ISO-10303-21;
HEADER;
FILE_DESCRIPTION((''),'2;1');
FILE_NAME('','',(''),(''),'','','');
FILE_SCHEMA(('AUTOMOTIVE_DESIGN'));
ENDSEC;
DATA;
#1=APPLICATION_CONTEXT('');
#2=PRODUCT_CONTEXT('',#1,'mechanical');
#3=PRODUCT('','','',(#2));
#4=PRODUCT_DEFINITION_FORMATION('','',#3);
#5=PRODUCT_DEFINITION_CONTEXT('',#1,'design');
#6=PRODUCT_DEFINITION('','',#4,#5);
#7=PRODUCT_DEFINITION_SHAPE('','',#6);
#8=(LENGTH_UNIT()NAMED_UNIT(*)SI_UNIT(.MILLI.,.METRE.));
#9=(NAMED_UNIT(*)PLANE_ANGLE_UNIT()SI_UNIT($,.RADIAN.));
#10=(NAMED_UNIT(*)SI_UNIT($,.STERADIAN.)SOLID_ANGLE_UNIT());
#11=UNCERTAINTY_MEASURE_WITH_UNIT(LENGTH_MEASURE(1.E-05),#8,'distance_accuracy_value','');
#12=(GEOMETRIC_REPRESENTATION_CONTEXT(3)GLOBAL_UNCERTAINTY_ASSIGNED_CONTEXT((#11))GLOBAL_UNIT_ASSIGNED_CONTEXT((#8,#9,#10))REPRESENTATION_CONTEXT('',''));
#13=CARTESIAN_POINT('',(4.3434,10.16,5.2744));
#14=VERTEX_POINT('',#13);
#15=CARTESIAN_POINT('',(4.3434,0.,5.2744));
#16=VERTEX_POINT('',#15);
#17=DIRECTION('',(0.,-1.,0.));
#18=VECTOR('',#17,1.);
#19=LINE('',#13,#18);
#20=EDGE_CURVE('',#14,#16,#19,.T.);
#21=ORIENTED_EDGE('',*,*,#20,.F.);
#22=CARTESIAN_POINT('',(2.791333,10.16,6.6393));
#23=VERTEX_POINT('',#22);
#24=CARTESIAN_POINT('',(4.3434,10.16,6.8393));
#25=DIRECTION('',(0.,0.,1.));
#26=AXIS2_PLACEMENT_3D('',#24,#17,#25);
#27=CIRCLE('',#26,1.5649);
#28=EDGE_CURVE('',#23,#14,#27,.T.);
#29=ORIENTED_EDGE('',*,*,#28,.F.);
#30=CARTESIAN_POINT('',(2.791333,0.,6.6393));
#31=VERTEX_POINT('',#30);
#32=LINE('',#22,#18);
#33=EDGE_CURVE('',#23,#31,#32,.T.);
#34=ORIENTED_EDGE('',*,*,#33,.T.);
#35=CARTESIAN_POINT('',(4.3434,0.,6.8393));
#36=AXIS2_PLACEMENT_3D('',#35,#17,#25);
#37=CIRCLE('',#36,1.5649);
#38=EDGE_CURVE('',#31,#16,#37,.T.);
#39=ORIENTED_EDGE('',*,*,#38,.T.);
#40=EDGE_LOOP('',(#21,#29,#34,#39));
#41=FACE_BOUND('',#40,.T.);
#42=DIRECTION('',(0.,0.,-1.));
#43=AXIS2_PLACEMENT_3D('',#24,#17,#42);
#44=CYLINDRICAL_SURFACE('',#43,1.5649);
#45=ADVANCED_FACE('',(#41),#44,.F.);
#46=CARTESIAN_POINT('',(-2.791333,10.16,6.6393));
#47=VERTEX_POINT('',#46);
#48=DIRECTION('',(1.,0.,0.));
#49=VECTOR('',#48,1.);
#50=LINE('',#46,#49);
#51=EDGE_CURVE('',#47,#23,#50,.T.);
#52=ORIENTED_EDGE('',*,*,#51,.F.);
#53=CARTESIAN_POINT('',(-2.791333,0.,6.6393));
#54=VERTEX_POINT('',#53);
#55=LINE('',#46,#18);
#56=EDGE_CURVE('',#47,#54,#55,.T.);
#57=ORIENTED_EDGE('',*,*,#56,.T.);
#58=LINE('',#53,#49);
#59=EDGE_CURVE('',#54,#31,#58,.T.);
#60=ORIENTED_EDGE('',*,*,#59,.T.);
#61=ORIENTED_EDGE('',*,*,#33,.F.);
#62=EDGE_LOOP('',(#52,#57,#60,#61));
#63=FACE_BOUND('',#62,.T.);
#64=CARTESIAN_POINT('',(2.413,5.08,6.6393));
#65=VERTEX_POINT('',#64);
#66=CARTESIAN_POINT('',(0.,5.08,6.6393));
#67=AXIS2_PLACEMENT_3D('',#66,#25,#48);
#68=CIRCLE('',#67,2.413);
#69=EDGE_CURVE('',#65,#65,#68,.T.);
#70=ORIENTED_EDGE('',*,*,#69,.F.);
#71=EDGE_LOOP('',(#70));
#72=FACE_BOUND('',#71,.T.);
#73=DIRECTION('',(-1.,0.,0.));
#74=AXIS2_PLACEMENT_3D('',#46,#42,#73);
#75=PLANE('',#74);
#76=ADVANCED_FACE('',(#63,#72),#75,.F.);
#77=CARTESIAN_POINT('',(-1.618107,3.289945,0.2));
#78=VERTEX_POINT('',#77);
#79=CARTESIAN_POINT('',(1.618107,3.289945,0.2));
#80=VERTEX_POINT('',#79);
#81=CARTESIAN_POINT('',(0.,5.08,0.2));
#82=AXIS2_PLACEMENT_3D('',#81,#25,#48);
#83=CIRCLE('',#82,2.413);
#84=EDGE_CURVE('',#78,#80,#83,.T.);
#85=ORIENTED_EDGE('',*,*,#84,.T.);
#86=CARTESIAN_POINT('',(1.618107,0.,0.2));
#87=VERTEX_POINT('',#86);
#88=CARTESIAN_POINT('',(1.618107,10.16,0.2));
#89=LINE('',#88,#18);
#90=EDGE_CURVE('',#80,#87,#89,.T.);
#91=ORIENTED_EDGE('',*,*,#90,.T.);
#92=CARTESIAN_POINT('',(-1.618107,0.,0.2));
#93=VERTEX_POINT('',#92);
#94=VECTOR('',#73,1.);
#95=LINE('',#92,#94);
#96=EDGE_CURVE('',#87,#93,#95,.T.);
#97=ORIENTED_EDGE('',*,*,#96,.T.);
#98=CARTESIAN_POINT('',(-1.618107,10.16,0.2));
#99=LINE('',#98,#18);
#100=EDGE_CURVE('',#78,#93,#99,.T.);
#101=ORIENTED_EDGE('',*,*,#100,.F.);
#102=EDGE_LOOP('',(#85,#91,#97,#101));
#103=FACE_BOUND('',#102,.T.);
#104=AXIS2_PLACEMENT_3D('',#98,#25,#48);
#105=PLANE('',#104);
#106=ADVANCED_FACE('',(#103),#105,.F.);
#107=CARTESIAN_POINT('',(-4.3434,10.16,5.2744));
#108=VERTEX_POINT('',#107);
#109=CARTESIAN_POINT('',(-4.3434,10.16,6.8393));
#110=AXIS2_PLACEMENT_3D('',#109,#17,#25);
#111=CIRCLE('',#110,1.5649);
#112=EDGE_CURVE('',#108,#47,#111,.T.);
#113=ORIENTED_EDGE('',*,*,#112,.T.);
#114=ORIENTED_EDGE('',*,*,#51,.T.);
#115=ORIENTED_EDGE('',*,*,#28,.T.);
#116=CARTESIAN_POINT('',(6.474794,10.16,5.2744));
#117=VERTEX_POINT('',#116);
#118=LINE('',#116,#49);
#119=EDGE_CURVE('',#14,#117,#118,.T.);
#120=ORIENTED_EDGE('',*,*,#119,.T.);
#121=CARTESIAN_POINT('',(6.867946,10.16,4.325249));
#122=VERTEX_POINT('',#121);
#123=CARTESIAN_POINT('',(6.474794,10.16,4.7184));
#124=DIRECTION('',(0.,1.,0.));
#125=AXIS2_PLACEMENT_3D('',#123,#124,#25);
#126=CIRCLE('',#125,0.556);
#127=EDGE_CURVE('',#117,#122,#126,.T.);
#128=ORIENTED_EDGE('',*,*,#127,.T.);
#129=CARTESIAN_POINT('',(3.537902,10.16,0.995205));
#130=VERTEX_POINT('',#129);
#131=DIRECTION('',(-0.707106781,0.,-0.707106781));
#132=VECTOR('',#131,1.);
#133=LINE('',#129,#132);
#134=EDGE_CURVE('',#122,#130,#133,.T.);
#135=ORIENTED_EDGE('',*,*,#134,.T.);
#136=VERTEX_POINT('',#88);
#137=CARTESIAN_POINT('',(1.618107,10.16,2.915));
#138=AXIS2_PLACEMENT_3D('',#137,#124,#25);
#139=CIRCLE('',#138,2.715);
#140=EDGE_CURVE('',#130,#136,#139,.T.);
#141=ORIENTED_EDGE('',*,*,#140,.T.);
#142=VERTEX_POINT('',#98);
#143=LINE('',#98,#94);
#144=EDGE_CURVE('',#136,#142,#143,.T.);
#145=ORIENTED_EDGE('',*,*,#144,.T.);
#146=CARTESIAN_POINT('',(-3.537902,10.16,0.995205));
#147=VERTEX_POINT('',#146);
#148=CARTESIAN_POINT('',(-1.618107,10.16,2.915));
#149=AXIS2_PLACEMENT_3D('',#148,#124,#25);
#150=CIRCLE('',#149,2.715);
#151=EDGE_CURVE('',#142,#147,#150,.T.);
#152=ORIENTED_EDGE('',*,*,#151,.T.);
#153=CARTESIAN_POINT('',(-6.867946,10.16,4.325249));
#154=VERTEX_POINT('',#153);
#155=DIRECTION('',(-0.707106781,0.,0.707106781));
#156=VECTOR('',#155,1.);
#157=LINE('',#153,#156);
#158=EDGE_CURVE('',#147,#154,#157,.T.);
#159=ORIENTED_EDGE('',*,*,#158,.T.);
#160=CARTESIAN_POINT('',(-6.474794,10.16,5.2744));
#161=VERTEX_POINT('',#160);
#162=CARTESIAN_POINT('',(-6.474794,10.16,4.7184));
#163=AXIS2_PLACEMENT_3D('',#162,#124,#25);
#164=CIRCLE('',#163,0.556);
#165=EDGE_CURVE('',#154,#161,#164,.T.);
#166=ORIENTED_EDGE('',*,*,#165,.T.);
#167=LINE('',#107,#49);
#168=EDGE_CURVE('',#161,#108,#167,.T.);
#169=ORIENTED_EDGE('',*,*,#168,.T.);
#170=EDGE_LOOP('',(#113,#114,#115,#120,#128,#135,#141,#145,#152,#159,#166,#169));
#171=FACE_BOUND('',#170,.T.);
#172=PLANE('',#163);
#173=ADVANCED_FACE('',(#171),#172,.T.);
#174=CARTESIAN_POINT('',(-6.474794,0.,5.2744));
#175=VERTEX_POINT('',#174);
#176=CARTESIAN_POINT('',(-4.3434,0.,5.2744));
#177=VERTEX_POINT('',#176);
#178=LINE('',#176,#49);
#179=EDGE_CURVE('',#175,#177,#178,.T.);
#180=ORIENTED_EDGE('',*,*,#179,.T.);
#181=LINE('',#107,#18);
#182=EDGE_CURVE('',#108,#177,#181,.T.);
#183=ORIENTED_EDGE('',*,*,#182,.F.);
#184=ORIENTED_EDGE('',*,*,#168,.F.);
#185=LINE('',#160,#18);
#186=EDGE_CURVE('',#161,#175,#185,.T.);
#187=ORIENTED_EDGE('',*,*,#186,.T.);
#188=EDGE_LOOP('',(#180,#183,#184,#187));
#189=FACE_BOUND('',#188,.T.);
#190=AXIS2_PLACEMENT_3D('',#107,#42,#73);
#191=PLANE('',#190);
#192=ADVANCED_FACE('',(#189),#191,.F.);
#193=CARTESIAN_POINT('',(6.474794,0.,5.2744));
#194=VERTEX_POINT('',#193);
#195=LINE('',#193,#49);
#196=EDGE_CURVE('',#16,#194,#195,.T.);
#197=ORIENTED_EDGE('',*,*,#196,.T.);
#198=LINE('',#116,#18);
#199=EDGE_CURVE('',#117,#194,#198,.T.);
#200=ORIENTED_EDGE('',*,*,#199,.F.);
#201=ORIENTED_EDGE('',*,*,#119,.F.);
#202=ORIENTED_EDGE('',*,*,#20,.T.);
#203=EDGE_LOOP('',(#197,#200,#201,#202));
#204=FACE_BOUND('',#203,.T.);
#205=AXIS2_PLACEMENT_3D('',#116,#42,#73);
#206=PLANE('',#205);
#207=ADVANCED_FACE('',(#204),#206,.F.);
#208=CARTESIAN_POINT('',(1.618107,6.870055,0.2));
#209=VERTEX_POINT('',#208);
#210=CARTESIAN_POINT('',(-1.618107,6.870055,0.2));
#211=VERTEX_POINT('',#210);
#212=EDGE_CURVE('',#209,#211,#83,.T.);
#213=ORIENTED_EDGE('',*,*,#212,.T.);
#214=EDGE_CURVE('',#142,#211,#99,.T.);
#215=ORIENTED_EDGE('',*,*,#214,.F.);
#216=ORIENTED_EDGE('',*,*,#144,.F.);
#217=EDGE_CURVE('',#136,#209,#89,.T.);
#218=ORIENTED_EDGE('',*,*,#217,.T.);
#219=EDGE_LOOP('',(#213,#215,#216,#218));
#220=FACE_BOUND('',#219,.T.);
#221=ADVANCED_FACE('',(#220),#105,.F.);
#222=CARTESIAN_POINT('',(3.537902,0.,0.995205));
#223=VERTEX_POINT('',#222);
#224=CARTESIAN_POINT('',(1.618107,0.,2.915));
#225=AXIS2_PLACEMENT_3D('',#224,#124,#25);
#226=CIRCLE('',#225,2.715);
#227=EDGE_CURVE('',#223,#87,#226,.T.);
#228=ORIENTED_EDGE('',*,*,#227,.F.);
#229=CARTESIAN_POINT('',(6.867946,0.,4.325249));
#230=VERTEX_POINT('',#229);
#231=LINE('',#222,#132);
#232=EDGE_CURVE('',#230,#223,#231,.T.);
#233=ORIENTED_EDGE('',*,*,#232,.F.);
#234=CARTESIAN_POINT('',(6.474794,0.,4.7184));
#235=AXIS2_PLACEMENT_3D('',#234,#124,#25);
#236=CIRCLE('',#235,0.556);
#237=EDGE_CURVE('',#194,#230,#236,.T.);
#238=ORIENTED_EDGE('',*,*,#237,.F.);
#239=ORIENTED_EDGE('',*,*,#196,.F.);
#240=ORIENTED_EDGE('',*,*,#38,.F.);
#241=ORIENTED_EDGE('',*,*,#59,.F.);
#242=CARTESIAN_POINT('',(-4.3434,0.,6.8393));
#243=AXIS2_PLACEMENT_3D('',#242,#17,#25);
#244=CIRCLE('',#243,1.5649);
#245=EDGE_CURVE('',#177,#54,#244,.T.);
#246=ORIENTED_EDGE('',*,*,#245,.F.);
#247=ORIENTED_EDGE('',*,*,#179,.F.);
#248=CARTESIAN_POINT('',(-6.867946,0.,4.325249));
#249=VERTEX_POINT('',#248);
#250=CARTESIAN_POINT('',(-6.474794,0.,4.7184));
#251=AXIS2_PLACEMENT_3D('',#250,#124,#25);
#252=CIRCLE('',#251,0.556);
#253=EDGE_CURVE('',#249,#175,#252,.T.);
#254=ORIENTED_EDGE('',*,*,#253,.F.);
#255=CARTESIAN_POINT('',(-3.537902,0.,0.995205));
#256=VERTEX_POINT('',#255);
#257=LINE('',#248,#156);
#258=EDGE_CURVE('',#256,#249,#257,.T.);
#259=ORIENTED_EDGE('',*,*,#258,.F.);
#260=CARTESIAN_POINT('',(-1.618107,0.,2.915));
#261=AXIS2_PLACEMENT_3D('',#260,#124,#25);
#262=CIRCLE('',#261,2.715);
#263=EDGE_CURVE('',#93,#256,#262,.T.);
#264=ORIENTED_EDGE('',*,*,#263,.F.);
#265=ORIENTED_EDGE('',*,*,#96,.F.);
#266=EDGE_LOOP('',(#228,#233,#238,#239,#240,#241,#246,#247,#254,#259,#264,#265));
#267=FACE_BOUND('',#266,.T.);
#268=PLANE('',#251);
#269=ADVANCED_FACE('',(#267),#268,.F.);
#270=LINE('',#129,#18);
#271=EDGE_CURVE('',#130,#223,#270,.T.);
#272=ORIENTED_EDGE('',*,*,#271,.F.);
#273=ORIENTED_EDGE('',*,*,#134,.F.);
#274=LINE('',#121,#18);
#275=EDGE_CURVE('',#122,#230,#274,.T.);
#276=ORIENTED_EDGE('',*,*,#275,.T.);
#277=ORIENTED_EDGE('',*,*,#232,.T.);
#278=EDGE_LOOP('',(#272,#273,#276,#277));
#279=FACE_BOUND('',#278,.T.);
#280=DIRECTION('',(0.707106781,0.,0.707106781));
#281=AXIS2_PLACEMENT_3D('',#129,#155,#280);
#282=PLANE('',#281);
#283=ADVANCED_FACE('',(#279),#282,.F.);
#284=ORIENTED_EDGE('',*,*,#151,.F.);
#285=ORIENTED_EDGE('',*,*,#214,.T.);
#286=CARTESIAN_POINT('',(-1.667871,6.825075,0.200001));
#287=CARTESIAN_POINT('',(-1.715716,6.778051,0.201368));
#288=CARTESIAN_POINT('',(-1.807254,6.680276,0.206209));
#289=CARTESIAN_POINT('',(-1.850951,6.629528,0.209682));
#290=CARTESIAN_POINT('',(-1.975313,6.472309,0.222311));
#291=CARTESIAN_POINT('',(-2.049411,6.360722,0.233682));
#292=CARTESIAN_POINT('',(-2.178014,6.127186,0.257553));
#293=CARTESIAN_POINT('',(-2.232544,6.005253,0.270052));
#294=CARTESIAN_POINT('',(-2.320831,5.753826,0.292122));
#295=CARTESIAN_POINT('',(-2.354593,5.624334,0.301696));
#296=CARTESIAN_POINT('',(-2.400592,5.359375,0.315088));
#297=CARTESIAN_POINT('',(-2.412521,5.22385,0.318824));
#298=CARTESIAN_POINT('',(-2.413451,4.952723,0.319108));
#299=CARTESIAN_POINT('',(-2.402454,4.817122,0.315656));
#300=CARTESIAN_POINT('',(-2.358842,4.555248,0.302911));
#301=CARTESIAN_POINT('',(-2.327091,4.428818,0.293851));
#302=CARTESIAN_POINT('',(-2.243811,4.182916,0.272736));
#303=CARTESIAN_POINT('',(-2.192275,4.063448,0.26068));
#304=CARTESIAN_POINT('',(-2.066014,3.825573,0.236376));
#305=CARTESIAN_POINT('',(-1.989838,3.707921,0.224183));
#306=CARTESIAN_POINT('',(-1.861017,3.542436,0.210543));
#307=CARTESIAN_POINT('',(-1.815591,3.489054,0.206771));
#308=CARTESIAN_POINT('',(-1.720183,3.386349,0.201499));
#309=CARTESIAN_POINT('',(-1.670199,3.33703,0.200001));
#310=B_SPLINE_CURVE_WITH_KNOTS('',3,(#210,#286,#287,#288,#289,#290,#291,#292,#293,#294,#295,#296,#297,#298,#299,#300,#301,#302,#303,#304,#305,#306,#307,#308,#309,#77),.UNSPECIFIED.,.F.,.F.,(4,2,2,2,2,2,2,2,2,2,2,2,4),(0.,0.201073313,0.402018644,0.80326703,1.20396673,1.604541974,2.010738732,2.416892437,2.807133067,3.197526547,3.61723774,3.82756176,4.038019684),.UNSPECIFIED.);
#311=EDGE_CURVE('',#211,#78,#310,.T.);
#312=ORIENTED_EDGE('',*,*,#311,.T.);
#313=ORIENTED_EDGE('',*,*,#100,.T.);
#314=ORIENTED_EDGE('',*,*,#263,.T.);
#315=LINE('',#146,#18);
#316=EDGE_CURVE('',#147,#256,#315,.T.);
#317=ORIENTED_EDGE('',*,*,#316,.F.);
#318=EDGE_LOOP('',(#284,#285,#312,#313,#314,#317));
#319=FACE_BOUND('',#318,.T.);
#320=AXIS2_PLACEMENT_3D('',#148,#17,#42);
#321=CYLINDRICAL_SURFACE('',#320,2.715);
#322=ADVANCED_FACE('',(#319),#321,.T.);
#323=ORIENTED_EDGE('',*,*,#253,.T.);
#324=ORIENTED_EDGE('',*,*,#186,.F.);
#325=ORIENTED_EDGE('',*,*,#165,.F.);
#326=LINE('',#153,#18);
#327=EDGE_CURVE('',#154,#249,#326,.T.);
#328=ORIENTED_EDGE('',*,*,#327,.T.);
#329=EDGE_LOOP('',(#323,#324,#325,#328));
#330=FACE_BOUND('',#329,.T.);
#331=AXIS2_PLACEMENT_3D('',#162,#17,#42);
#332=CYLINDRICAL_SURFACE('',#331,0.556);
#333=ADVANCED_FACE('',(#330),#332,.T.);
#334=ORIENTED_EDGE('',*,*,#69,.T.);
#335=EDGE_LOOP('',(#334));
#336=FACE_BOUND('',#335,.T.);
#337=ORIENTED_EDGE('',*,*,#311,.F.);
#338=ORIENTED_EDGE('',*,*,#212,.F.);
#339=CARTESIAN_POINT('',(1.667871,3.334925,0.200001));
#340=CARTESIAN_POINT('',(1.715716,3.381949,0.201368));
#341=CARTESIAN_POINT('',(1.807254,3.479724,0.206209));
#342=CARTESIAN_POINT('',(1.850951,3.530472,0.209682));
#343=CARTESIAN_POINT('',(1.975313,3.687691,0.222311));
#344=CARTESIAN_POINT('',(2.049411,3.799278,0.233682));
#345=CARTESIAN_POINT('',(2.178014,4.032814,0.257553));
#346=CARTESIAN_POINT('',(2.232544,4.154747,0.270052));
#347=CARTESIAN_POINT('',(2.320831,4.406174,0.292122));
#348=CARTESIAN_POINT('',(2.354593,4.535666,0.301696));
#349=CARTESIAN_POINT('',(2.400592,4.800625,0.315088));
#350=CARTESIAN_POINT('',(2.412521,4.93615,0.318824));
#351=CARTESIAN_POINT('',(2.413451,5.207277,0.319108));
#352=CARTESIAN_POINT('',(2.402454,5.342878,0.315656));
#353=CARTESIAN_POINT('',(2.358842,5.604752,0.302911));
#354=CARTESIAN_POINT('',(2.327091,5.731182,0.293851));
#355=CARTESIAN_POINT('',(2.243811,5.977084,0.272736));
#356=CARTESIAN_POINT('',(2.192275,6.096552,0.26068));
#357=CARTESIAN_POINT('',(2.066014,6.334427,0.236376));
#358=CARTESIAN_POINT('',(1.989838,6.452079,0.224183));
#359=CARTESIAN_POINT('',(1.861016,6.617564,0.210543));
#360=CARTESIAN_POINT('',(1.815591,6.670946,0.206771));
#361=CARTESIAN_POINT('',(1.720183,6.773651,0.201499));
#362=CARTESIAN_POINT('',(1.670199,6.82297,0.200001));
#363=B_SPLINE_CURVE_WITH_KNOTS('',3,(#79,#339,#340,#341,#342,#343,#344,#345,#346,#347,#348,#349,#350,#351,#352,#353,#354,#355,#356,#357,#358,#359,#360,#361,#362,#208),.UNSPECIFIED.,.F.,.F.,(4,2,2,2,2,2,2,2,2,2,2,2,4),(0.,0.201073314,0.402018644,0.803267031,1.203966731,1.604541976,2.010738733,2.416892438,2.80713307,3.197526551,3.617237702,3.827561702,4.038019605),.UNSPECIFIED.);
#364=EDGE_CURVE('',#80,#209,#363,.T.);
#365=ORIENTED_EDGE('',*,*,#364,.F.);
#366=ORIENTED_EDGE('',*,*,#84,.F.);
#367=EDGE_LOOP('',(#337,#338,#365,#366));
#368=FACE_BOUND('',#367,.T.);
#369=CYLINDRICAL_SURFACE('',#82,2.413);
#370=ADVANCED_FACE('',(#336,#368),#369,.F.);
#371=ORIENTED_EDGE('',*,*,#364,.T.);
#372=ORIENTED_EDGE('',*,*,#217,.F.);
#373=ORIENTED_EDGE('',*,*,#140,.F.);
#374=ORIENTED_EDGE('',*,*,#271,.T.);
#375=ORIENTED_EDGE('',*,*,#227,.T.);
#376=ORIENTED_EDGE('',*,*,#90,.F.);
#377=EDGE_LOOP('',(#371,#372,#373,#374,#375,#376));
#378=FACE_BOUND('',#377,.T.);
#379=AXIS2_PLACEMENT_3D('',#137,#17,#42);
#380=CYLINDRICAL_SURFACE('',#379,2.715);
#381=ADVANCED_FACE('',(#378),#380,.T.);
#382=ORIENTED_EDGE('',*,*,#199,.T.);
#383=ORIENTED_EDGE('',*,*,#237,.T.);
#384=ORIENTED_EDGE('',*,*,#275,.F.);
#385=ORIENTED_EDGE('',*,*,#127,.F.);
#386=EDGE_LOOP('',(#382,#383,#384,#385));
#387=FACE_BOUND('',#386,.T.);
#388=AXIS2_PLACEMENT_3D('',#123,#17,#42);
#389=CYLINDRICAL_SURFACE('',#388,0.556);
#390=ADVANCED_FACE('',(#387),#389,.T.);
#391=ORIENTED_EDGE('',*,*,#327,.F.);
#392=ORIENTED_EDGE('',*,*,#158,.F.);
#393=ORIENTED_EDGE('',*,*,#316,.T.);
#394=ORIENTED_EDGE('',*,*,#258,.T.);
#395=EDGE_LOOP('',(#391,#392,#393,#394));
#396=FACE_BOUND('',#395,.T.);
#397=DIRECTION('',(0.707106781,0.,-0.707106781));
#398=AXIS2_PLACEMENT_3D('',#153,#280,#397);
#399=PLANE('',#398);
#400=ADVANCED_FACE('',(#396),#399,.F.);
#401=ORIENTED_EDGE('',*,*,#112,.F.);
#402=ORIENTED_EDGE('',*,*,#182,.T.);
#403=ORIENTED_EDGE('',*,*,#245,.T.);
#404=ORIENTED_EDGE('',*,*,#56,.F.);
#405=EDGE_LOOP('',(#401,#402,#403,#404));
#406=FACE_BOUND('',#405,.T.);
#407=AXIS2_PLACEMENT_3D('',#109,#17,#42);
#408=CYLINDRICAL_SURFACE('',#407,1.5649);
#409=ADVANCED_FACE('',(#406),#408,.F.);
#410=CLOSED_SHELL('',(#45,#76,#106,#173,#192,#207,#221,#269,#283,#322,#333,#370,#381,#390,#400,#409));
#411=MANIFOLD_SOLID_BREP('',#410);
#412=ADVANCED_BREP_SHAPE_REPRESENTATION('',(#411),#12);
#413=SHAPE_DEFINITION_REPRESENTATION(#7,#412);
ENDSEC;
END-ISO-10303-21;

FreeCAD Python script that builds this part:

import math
import FreeCAD as App
import Part
import Sketcher
from FreeCAD import Vector
Q = App.Units.Quantity

doc = App.newDocument("Part")
params = doc.addObject("Spreadsheet::Sheet", "Params")
for row, (alias, value) in enumerate([
    ("pad1_length", "0.4 in"),
    ("sketch2_diameter", "0.19 in"),
], start=1):
    params.set(f"A{row}", alias)
    params.set(f"B{row}", "=" + value)
    params.setAlias(f"B{row}", alias)

body = doc.addObject("PartDesign::Body", "Body")

# Sketch on XZ plane
sketch1 = doc.addObject("Sketcher::SketchObject", "Sketch")
body.addObject(sketch1)
sketch1.AttachmentSupport = (doc.XZ_Plane, [""])
sketch1.MapMode = "FlatFace"
sketch1.addGeometry([
    Part.LineSegment(Vector(-6.5, 5.3, 0), Vector(-4.3, 5.3, 0)),  # 0
    Part.ArcOfCircle(Part.Circle(Vector(-4.3, 6.8, 0), Vector(0, 0, 1), 1.6), math.radians(-90), math.radians(-7)),  # 1
    Part.LineSegment(Vector(-2.8, 6.6, 0), Vector(2.8, 6.6, 0)),  # 2
    Part.ArcOfCircle(Part.Circle(Vector(4.3, 6.8, 0), Vector(0, 0, 1), 1.6), math.radians(-173), math.radians(-90)),  # 3
    Part.LineSegment(Vector(4.3, 5.3, 0), Vector(6.5, 5.3, 0)),  # 4
    Part.ArcOfCircle(Part.Circle(Vector(6.5, 4.7, 0), Vector(0, 0, 1), 0.6), math.radians(-45), math.radians(90)),  # 5
    Part.LineSegment(Vector(6.9, 4.3, 0), Vector(3.5, 1, 0)),  # 6
    Part.ArcOfCircle(Part.Circle(Vector(1.6, 2.9, 0), Vector(0, 0, 1), 2.7), math.radians(-90), math.radians(-45)),  # 7
    Part.LineSegment(Vector(1.6, 0.2, 0), Vector(-1.6, 0.2, 0)),  # 8
    Part.ArcOfCircle(Part.Circle(Vector(-1.6, 2.9, 0), Vector(0, 0, 1), 2.7), math.radians(-135), math.radians(-90)),  # 9
    Part.LineSegment(Vector(-3.5, 1, 0), Vector(-6.9, 4.3, 0)),  # 10
    Part.ArcOfCircle(Part.Circle(Vector(-6.5, 4.7, 0), Vector(0, 0, 1), 0.6), math.radians(90), math.radians(225)),  # 11
], False)
sketch1.addConstraint([
    Sketcher.Constraint("Tangent", 0, 2, 1, 1),
    Sketcher.Constraint("Coincident", 1, 2, 2, 1),
    Sketcher.Constraint("Coincident", 2, 2, 3, 1),
    Sketcher.Constraint("Tangent", 3, 2, 4, 1),
    Sketcher.Constraint("Tangent", 4, 2, 5, 2),
    Sketcher.Constraint("Tangent", 5, 1, 6, 1),
    Sketcher.Constraint("Tangent", 6, 2, 7, 2),
    Sketcher.Constraint("Tangent", 7, 1, 8, 1),
    Sketcher.Constraint("Tangent", 8, 2, 9, 2),
    Sketcher.Constraint("Tangent", 9, 1, 10, 1),
    Sketcher.Constraint("Tangent", 10, 2, 11, 2),
    Sketcher.Constraint("Tangent", 11, 1, 0, 1),
    Sketcher.Constraint("Horizontal", 0),
    Sketcher.Constraint("Horizontal", 2),
    Sketcher.Constraint("Horizontal", 4),
    Sketcher.Constraint("Horizontal", 8),
    Sketcher.Constraint("Equal", 1, 3),
    Sketcher.Constraint("Equal", 7, 9),
    Sketcher.Constraint("Equal", 5, 11),
    Sketcher.Constraint("Symmetric", 1, 3, 3, 3, -2),
    Sketcher.Constraint("Symmetric", 6, 2, 9, 1, -2),
    Sketcher.Constraint("Perpendicular", 6, 10),
    Sketcher.Constraint("Radius", 1, 1.5649),
    Sketcher.Constraint("Radius", 5, 0.556),
    Sketcher.Constraint("Radius", 7, 2.715),
    Sketcher.Constraint("DistanceX", 1, 3, -1, 1, Q("0.171 in")),
    Sketcher.Constraint("DistanceY", 7, 3, 5, 3, Q("0.071 in")),
    Sketcher.Constraint("DistanceX", 1, 2, 7, 3, Q("0.1736 in")),
    Sketcher.Constraint("DistanceY", -1, 1, 1, 3, 6.8393),
    Sketcher.Constraint("DistanceY", -1, 1, 1, 2, 6.6393),
])
pad1 = doc.addObject("PartDesign::Pad", "Pad")
body.addObject(pad1)
pad1.Profile = sketch1
pad1.setExpression("Length", "Params.pad1_length")
pad1.Reversed = True

# Sketch on XY plane
sketch2 = doc.addObject("Sketcher::SketchObject", "Sketch001")
body.addObject(sketch2)
sketch2.AttachmentSupport = (doc.XY_Plane, [""])
sketch2.MapMode = "FlatFace"
sketch2.AttachmentOffset = App.Placement(Vector(0, 0, 6.6393), App.Rotation())
sketch2.addGeometry(Part.Circle(Vector(0, 5.1, 0), Vector(0, 0, 1), 2.4), False)
sketch2.addConstraint([
    Sketcher.Constraint("PointOnObject", 0, 3, -2),
    Sketcher.Constraint("Diameter", 0, Q("0.19 in")),
    Sketcher.Constraint("DistanceY", -1, 1, 0, 3, Q("0.2 in")),
])
sketch2.setExpression("Constraints[1]", "Params.sketch2_diameter")
pocket1 = doc.addObject("PartDesign::Pocket", "Pocket")
body.addObject(pocket1)
pocket1.Profile = sketch2
pocket1.Type = "ThroughAll"

doc.recompute()
